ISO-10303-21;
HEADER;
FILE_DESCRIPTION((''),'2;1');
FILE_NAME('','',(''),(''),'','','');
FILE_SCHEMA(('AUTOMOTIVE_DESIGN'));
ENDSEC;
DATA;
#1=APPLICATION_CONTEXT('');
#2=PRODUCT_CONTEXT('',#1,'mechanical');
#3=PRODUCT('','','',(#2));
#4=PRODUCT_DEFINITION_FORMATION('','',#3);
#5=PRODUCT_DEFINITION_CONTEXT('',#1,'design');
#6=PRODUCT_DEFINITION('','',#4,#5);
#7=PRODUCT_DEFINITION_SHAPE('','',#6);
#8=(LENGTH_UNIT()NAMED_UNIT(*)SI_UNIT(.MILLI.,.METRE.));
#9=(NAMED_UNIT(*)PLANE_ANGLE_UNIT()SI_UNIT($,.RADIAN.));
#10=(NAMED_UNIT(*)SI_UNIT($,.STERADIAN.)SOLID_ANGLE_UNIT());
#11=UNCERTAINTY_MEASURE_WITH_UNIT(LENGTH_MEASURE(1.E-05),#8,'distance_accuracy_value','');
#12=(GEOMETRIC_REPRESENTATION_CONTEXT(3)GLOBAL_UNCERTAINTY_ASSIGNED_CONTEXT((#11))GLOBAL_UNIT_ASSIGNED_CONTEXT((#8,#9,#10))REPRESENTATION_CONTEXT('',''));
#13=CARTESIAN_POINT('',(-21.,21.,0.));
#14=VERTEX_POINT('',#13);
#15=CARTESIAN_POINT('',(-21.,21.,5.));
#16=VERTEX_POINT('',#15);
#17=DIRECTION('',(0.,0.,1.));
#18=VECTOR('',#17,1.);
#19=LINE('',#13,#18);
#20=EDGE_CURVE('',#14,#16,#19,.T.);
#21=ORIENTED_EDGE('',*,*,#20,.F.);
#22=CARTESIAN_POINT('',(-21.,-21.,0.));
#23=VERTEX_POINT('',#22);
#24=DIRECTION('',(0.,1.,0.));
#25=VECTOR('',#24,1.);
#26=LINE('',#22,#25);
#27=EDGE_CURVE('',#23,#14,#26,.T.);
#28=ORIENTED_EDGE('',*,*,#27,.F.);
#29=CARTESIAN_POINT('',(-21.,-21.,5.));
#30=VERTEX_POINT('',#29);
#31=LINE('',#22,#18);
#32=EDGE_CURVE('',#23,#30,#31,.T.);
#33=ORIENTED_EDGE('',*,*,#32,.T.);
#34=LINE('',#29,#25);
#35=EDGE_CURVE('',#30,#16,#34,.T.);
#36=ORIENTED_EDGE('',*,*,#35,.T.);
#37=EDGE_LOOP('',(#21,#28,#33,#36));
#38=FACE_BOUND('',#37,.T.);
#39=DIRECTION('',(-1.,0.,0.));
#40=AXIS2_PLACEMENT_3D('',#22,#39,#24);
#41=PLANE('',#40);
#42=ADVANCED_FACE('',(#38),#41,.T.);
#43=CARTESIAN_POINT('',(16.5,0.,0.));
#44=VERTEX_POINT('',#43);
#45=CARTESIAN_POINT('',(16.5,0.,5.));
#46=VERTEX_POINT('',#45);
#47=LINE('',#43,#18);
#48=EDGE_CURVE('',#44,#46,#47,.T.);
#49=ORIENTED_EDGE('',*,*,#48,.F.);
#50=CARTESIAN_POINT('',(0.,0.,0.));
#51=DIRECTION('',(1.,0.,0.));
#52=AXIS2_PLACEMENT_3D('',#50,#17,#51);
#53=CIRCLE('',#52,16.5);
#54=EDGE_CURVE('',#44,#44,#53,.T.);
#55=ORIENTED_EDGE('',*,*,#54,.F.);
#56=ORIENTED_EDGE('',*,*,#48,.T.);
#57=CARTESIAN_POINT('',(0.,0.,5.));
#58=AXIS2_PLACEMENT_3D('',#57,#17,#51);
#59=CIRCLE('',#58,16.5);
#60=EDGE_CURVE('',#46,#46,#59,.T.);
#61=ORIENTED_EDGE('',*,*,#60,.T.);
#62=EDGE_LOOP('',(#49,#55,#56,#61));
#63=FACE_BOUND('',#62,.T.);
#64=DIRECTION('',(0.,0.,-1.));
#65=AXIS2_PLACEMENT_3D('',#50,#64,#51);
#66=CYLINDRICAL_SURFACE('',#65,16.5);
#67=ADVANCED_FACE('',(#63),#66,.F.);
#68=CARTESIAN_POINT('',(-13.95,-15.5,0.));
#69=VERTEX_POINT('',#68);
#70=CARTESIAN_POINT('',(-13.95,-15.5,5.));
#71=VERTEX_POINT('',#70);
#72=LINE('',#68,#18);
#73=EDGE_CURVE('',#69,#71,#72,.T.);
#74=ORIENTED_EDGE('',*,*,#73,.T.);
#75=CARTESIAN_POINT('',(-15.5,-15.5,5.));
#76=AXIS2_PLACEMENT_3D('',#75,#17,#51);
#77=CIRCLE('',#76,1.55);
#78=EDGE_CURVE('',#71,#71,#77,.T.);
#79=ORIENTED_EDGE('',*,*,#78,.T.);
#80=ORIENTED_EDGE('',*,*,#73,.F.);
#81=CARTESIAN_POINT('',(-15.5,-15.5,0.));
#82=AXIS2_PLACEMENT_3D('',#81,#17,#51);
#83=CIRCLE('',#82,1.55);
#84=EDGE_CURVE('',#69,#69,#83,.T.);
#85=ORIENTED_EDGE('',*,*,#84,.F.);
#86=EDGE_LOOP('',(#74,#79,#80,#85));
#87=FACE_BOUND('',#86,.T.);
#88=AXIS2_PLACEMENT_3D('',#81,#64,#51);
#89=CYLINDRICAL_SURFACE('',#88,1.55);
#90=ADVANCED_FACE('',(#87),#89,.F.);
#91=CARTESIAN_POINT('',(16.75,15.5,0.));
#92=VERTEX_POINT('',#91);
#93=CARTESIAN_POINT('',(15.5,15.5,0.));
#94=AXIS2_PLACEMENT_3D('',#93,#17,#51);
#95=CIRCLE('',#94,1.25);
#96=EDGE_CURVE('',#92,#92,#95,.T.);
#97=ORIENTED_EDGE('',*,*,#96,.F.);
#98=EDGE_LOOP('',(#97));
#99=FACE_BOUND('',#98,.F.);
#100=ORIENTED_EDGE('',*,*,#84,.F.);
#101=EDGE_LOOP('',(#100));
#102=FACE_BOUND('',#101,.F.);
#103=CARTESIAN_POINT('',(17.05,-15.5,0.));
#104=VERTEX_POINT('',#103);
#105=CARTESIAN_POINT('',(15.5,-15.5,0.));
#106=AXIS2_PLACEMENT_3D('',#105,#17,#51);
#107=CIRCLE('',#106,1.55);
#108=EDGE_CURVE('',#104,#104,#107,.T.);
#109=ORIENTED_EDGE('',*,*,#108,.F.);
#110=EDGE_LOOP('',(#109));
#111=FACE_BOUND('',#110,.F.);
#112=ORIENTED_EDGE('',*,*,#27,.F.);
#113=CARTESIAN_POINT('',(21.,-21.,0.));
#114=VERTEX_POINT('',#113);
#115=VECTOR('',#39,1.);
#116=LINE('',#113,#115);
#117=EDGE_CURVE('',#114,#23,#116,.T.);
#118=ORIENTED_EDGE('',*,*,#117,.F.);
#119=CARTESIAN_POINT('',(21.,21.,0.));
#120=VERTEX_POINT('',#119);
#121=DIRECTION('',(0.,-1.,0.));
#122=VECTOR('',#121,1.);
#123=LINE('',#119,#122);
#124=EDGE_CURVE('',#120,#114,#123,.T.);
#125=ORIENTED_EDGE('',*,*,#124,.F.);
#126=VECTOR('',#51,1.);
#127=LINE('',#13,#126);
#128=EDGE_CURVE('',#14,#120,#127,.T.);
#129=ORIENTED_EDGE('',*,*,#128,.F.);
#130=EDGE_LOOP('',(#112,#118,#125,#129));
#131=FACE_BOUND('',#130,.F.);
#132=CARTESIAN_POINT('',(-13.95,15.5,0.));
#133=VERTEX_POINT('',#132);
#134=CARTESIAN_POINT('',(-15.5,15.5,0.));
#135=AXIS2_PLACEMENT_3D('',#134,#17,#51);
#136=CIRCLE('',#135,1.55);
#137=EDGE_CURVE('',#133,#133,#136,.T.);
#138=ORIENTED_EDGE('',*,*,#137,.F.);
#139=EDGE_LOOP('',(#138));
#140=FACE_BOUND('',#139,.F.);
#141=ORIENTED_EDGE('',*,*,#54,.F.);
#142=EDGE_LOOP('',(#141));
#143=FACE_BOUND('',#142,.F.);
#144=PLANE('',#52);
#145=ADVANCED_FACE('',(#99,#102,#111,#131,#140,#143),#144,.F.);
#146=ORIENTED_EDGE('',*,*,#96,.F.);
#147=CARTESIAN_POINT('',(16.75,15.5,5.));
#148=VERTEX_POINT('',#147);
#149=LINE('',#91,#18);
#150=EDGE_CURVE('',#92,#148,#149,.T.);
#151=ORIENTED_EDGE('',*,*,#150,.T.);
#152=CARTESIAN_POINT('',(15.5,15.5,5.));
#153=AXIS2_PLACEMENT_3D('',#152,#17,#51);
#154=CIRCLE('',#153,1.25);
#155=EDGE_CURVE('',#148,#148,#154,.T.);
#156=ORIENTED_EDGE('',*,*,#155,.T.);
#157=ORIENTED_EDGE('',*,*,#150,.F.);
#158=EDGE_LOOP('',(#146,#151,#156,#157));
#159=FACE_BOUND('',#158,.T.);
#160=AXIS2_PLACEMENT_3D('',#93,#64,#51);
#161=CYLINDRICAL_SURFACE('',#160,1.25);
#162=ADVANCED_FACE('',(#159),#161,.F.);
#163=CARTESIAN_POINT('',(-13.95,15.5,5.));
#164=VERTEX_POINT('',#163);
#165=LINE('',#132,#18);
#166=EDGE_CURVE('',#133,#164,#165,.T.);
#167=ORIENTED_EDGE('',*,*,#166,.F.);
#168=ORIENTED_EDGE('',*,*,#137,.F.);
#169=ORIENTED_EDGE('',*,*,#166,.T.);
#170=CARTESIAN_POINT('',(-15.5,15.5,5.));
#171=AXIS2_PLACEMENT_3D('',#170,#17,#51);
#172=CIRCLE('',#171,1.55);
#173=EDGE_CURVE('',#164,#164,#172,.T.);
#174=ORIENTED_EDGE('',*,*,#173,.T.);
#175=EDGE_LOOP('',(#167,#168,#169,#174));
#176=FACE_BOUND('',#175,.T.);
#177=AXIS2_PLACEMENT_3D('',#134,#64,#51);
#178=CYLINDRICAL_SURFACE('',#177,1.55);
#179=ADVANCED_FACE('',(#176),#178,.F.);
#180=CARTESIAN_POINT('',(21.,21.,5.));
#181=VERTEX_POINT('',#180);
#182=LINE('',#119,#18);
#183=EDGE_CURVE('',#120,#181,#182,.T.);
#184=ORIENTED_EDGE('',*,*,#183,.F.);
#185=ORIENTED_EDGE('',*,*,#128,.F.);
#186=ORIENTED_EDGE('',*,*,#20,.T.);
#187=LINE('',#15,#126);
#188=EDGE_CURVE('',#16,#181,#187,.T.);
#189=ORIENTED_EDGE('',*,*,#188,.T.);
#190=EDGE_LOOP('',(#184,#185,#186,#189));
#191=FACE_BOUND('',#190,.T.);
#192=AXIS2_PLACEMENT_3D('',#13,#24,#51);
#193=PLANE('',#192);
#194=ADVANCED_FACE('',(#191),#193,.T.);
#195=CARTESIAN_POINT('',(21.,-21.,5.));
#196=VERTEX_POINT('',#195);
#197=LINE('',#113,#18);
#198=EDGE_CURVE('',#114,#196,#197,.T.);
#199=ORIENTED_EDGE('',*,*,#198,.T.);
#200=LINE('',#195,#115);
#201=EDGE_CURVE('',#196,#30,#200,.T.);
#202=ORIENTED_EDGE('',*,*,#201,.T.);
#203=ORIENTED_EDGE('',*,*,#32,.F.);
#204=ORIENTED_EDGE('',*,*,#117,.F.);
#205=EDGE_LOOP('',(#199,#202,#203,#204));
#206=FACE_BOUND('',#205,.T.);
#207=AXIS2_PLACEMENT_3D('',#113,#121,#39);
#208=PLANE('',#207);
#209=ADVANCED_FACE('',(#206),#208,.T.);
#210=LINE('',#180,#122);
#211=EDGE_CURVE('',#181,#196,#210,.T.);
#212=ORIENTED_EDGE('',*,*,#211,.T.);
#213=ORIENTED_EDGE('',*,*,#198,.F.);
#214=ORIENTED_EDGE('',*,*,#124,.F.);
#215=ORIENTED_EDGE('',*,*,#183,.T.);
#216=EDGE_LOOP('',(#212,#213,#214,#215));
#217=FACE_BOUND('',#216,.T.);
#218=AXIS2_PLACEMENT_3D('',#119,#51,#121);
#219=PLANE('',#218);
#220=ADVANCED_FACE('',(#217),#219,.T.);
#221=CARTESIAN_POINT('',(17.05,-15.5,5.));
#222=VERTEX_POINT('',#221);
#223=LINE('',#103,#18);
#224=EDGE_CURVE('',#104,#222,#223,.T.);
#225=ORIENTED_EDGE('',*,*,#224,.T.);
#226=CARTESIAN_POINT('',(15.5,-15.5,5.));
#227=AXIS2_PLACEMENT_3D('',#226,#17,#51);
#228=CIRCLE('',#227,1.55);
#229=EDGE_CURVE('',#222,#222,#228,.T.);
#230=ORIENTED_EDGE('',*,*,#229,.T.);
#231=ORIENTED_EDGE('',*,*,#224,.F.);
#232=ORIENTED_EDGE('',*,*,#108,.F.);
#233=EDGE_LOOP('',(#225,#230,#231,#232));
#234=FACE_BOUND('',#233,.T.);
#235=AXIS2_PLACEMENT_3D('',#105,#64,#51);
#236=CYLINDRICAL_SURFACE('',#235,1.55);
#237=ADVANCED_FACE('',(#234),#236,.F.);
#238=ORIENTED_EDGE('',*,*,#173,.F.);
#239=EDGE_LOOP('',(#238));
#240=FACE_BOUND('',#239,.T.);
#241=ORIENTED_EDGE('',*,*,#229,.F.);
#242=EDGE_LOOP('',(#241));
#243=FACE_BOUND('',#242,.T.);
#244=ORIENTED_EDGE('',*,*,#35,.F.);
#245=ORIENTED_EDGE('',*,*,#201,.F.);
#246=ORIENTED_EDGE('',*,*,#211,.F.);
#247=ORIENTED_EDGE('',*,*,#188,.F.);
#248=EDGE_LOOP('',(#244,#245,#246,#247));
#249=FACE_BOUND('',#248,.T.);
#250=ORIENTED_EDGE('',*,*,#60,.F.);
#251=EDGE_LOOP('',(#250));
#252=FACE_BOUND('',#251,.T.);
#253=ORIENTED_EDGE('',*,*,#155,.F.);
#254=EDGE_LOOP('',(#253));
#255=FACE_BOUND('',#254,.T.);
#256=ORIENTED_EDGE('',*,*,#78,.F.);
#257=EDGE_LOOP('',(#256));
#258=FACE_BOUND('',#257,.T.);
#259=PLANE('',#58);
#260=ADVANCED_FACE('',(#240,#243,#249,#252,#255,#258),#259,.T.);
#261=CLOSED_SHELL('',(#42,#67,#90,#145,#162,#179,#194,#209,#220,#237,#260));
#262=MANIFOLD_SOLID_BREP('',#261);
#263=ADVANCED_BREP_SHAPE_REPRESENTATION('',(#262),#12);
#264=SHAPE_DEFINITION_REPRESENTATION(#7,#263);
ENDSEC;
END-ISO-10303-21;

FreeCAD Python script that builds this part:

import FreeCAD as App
import Part
import Sketcher

V = App.Vector
Q = App.Units.Quantity

doc = App.newDocument("Part")
params = doc.addObject("Spreadsheet::Sheet", "Params")
for row, (alias, value) in enumerate([
    ("sketch1_width", "42 mm"),
    ("sketch1_diameter", "33 mm"),
    ("sketch1_diameter2", "3.1 mm"),
    ("sketch1_diameter3", "2.5 mm"),
    ("pad1_length", "5 mm"),
], start=1):
    params.set(f"A{row}", alias)
    params.set(f"B{row}", "=" + value)
    params.setAlias(f"B{row}", alias)

body = doc.addObject("PartDesign::Body", "Body")

sketch1 = body.newObject("Sketcher::SketchObject", "Sketch")
sketch1.AttachmentSupport = (doc.getObject("XY_Plane"), [""])
sketch1.MapMode = "FlatFace"
sketch1.addGeometry(Part.LineSegment(V(21, 21, 0), V(-21, 21, 0)), False)
sketch1.addGeometry(Part.LineSegment(V(-21, 21, 0), V(-21, -21, 0)), False)
sketch1.addGeometry(Part.LineSegment(V(-21, -21, 0), V(21, -21, 0)), False)
sketch1.addGeometry(Part.LineSegment(V(21, -21, 0), V(21, 21, 0)), False)
sketch1.addGeometry(Part.Circle(V(-15.5, -15.5, 0), V(0, 0, 1), 1.6), False)
sketch1.addGeometry(Part.Circle(V(15.5, -15.5, 0), V(0, 0, 1), 1.6), False)
sketch1.addGeometry(Part.Circle(V(-15.5, 15.5, 0), V(0, 0, 1), 1.6), False)
sketch1.addGeometry(Part.Circle(V(0, 0, 0), V(0, 0, 1), 16.5), False)
sketch1.addGeometry(Part.Circle(V(15.5, 15.5, 0), V(0, 0, 1), 1.2), False)
sketch1.addConstraint(Sketcher.Constraint("Coincident", 0, 2, 1, 1))
sketch1.addConstraint(Sketcher.Constraint("Coincident", 1, 2, 2, 1))
sketch1.addConstraint(Sketcher.Constraint("Coincident", 2, 2, 3, 1))
sketch1.addConstraint(Sketcher.Constraint("Coincident", 3, 2, 0, 1))
sketch1.addConstraint(Sketcher.Constraint("Horizontal", 0))
sketch1.addConstraint(Sketcher.Constraint("Vertical", 1))
sketch1.addConstraint(Sketcher.Constraint("Horizontal", 2))
sketch1.addConstraint(Sketcher.Constraint("Vertical", 3))
sketch1.addConstraint(Sketcher.Constraint("Coincident", 7, 3, -1, 1))
sketch1.addConstraint(Sketcher.Constraint("Equal", 4, 5))
sketch1.addConstraint(Sketcher.Constraint("Equal", 5, 6))
sketch1.addConstraint(Sketcher.Constraint("Symmetric", 5, 3, 6, 3, -1, 1))
sketch1.addConstraint(Sketcher.Constraint("Symmetric", 4, 3, 8, 3, -1, 1))
sketch1.addConstraint(Sketcher.Constraint("Symmetric", 0, 2, 2, 2, -1, 1))
sketch1.addConstraint(Sketcher.Constraint("Symmetric", 4, 3, 5, 3, -2))
sketch1.addConstraint(Sketcher.Constraint("Equal", 2, 1))
sketch1.addConstraint(Sketcher.Constraint("DistanceX", 0, 2, 0, 1, Q("42 mm")))
sketch1.addConstraint(Sketcher.Constraint("Diameter", 7, Q("33 mm")))
sketch1.addConstraint(Sketcher.Constraint("Diameter", 4, Q("3.1 mm")))
sketch1.addConstraint(Sketcher.Constraint("Diameter", 8, Q("2.5 mm")))
sketch1.addConstraint(Sketcher.Constraint("DistanceX", 4, 3, 5, 3, Q("31 mm")))
sketch1.addConstraint(Sketcher.Constraint("DistanceY", 4, 3, 6, 3, Q("31 mm")))
sketch1.setExpression("Constraints[16]", "Params.sketch1_width")
sketch1.setExpression("Constraints[17]", "Params.sketch1_diameter")
sketch1.setExpression("Constraints[18]", "Params.sketch1_diameter2")
sketch1.setExpression("Constraints[19]", "Params.sketch1_diameter3")
pad1 = body.newObject("PartDesign::Pad", "Pad")
pad1.Profile = sketch1
pad1.setExpression("Length", "Params.pad1_length")

doc.recompute()
